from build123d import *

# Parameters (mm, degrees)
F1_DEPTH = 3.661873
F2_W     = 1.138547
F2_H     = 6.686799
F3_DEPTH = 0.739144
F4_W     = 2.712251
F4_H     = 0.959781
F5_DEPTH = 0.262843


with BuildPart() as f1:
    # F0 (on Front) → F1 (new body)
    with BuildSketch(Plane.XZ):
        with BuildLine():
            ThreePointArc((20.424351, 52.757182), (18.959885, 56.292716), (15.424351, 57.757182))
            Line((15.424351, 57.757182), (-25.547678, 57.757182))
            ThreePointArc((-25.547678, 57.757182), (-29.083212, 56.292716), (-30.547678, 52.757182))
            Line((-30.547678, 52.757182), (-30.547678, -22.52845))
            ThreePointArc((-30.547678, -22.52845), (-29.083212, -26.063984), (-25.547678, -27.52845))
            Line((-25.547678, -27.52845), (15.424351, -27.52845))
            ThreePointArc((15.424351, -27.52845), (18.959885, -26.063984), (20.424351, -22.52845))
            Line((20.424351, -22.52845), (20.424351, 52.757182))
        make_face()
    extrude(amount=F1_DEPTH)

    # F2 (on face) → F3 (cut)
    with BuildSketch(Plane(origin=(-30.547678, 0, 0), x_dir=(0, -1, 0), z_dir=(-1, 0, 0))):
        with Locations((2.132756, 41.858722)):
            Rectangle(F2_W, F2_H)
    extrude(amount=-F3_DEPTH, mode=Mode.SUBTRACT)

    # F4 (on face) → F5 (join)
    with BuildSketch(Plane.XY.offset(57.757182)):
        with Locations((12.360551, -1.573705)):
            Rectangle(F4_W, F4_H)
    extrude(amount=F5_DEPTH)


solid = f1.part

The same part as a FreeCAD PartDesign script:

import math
import FreeCAD as App
import Part
import Sketcher
from FreeCAD import Vector

doc = App.newDocument("Part")
body = doc.addObject("PartDesign::Body", "Body")

# Sketch on XZ plane
sketch1 = doc.addObject("Sketcher::SketchObject", "Sketch")
body.addObject(sketch1)
sketch1.AttachmentSupport = (doc.XZ_Plane, [""])
sketch1.MapMode = "FlatFace"
sketch1.addGeometry([
    Part.ArcOfCircle(Part.Circle(Vector(15.4, 52.8, 0), Vector(0, 0, 1), 5), math.radians(0), math.radians(90)),  # 0
    Part.LineSegment(Vector(15.4, 57.8, 0), Vector(-25.5, 57.8, 0)),  # 1
    Part.ArcOfCircle(Part.Circle(Vector(-25.5, 52.8, 0), Vector(0, 0, 1), 5), math.radians(90), math.radians(180)),  # 2
    Part.LineSegment(Vector(-30.5, 52.8, 0), Vector(-30.5, -22.5, 0)),  # 3
    Part.ArcOfCircle(Part.Circle(Vector(-25.5, -22.5, 0), Vector(0, 0, 1), 5), math.radians(180), math.radians(270)),  # 4
    Part.LineSegment(Vector(-25.5, -27.5, 0), Vector(15.4, -27.5, 0)),  # 5
    Part.ArcOfCircle(Part.Circle(Vector(15.4, -22.5, 0), Vector(0, 0, 1), 5), math.radians(-90), math.radians(0)),  # 6
    Part.LineSegment(Vector(20.4, -22.5, 0), Vector(20.4, 52.8, 0)),  # 7
], False)
sketch1.addConstraint([
    Sketcher.Constraint("Tangent", 0, 2, 1, 1),
    Sketcher.Constraint("Tangent", 1, 2, 2, 1),
    Sketcher.Constraint("Tangent", 2, 2, 3, 1),
    Sketcher.Constraint("Tangent", 3, 2, 4, 1),
    Sketcher.Constraint("Tangent", 4, 2, 5, 1),
    Sketcher.Constraint("Tangent", 5, 2, 6, 1),
    Sketcher.Constraint("Tangent", 6, 2, 7, 1),
    Sketcher.Constraint("Tangent", 7, 2, 0, 1),
    Sketcher.Constraint("Horizontal", 1),
    Sketcher.Constraint("Vertical", 3),
    Sketcher.Constraint("Horizontal", 5),
    Sketcher.Constraint("Vertical", 7),
    Sketcher.Constraint("Equal", 0, 2),
    Sketcher.Constraint("Equal", 2, 4),
    Sketcher.Constraint("Equal", 4, 6),
    Sketcher.Constraint("Radius", 0, 5.0),
    Sketcher.Constraint("DistanceX", 1, 2, 1, 1, 40.972029),
    Sketcher.Constraint("DistanceY", 3, 2, 3, 1, 75.285632),
    Sketcher.Constraint("DistanceX", -1, 1, 0, 3, 15.424351),
    Sketcher.Constraint("DistanceY", 4, 3, -1, 1, 22.52845),
])
pad1 = doc.addObject("PartDesign::Pad", "Pad")
body.addObject(pad1)
pad1.Profile = sketch1
pad1.Length = 3.661873

# Sketch on YZ plane
sketch2 = doc.addObject("Sketcher::SketchObject", "Sketch001")
body.addObject(sketch2)
sketch2.AttachmentSupport = (doc.YZ_Plane, [""])
sketch2.MapMode = "FlatFace"
sketch2.AttachmentOffset = App.Placement(Vector(0, 0, -30.547678), App.Rotation())
sketch2.addGeometry([
    Part.LineSegment(Vector(-1.6, 45.2, 0), Vector(-1.6, 38.5, 0)),
    Part.LineSegment(Vector(-1.6, 38.5, 0), Vector(-2.7, 38.5, 0)),
    Part.LineSegment(Vector(-2.7, 38.5, 0), Vector(-2.7, 45.2, 0)),
    Part.LineSegment(Vector(-2.7, 45.2, 0), Vector(-1.6, 45.2, 0)),
], False)
sketch2.addConstraint([
    Sketcher.Constraint("Coincident", 0, 2, 1, 1),
    Sketcher.Constraint("Coincident", 1, 2, 2, 1),
    Sketcher.Constraint("Coincident", 2, 2, 3, 1),
    Sketcher.Constraint("Coincident", 3, 2, 0, 1),
    Sketcher.Constraint("Vertical", 0),
    Sketcher.Constraint("Horizontal", 1),
    Sketcher.Constraint("Vertical", 2),
    Sketcher.Constraint("Horizontal", 3),
    Sketcher.Constraint("DistanceY", 0, 2, 0, 1, 6.686799),
    Sketcher.Constraint("DistanceX", 1, 2, 1, 1, 1.138547),
    Sketcher.Constraint("DistanceX", 1, 2, -1, 1, 2.70203),
    Sketcher.Constraint("DistanceY", -1, 1, 2, 2, 45.202121),
])
pocket1 = doc.addObject("PartDesign::Pocket", "Pocket")
body.addObject(pocket1)
pocket1.Profile = sketch2
pocket1.Length = 0.739144
pocket1.Reversed = True

# Sketch on XY plane
sketch3 = doc.addObject("Sketcher::SketchObject", "Sketch002")
body.addObject(sketch3)
sketch3.AttachmentSupport = (doc.XY_Plane, [""])
sketch3.MapMode = "FlatFace"
sketch3.AttachmentOffset = App.Placement(Vector(0, 0, 57.757182), App.Rotation())
sketch3.addGeometry([
    Part.LineSegment(Vector(11, -1.1, 0), Vector(11, -2.1, 0)),
    Part.LineSegment(Vector(11, -2.1, 0), Vector(13.7, -2.1, 0)),
    Part.LineSegment(Vector(13.7, -2.1, 0), Vector(13.7, -1.1, 0)),
    Part.LineSegment(Vector(13.7, -1.1, 0), Vector(11, -1.1, 0)),
], False)
sketch3.addConstraint([
    Sketcher.Constraint("Coincident", 0, 2, 1, 1),
    Sketcher.Constraint("Coincident", 1, 2, 2, 1),
    Sketcher.Constraint("Coincident", 2, 2, 3, 1),
    Sketcher.Constraint("Coincident", 3, 2, 0, 1),
    Sketcher.Constraint("Vertical", 0),
    Sketcher.Constraint("Horizontal", 1),
    Sketcher.Constraint("Vertical", 2),
    Sketcher.Constraint("Horizontal", 3),
    Sketcher.Constraint("DistanceX", 1, 1, 1, 2, 2.712251),
    Sketcher.Constraint("DistanceY", 0, 2, 0, 1, 0.959781),
    Sketcher.Constraint("DistanceX", -1, 1, 0, 2, 11.004425),
    Sketcher.Constraint("DistanceY", 0, 2, -1, 1, 2.053596),
])
pad2 = doc.addObject("PartDesign::Pad", "Pad001")
body.addObject(pad2)
pad2.Profile = sketch3
pad2.Length = 0.262843

doc.recompute()
